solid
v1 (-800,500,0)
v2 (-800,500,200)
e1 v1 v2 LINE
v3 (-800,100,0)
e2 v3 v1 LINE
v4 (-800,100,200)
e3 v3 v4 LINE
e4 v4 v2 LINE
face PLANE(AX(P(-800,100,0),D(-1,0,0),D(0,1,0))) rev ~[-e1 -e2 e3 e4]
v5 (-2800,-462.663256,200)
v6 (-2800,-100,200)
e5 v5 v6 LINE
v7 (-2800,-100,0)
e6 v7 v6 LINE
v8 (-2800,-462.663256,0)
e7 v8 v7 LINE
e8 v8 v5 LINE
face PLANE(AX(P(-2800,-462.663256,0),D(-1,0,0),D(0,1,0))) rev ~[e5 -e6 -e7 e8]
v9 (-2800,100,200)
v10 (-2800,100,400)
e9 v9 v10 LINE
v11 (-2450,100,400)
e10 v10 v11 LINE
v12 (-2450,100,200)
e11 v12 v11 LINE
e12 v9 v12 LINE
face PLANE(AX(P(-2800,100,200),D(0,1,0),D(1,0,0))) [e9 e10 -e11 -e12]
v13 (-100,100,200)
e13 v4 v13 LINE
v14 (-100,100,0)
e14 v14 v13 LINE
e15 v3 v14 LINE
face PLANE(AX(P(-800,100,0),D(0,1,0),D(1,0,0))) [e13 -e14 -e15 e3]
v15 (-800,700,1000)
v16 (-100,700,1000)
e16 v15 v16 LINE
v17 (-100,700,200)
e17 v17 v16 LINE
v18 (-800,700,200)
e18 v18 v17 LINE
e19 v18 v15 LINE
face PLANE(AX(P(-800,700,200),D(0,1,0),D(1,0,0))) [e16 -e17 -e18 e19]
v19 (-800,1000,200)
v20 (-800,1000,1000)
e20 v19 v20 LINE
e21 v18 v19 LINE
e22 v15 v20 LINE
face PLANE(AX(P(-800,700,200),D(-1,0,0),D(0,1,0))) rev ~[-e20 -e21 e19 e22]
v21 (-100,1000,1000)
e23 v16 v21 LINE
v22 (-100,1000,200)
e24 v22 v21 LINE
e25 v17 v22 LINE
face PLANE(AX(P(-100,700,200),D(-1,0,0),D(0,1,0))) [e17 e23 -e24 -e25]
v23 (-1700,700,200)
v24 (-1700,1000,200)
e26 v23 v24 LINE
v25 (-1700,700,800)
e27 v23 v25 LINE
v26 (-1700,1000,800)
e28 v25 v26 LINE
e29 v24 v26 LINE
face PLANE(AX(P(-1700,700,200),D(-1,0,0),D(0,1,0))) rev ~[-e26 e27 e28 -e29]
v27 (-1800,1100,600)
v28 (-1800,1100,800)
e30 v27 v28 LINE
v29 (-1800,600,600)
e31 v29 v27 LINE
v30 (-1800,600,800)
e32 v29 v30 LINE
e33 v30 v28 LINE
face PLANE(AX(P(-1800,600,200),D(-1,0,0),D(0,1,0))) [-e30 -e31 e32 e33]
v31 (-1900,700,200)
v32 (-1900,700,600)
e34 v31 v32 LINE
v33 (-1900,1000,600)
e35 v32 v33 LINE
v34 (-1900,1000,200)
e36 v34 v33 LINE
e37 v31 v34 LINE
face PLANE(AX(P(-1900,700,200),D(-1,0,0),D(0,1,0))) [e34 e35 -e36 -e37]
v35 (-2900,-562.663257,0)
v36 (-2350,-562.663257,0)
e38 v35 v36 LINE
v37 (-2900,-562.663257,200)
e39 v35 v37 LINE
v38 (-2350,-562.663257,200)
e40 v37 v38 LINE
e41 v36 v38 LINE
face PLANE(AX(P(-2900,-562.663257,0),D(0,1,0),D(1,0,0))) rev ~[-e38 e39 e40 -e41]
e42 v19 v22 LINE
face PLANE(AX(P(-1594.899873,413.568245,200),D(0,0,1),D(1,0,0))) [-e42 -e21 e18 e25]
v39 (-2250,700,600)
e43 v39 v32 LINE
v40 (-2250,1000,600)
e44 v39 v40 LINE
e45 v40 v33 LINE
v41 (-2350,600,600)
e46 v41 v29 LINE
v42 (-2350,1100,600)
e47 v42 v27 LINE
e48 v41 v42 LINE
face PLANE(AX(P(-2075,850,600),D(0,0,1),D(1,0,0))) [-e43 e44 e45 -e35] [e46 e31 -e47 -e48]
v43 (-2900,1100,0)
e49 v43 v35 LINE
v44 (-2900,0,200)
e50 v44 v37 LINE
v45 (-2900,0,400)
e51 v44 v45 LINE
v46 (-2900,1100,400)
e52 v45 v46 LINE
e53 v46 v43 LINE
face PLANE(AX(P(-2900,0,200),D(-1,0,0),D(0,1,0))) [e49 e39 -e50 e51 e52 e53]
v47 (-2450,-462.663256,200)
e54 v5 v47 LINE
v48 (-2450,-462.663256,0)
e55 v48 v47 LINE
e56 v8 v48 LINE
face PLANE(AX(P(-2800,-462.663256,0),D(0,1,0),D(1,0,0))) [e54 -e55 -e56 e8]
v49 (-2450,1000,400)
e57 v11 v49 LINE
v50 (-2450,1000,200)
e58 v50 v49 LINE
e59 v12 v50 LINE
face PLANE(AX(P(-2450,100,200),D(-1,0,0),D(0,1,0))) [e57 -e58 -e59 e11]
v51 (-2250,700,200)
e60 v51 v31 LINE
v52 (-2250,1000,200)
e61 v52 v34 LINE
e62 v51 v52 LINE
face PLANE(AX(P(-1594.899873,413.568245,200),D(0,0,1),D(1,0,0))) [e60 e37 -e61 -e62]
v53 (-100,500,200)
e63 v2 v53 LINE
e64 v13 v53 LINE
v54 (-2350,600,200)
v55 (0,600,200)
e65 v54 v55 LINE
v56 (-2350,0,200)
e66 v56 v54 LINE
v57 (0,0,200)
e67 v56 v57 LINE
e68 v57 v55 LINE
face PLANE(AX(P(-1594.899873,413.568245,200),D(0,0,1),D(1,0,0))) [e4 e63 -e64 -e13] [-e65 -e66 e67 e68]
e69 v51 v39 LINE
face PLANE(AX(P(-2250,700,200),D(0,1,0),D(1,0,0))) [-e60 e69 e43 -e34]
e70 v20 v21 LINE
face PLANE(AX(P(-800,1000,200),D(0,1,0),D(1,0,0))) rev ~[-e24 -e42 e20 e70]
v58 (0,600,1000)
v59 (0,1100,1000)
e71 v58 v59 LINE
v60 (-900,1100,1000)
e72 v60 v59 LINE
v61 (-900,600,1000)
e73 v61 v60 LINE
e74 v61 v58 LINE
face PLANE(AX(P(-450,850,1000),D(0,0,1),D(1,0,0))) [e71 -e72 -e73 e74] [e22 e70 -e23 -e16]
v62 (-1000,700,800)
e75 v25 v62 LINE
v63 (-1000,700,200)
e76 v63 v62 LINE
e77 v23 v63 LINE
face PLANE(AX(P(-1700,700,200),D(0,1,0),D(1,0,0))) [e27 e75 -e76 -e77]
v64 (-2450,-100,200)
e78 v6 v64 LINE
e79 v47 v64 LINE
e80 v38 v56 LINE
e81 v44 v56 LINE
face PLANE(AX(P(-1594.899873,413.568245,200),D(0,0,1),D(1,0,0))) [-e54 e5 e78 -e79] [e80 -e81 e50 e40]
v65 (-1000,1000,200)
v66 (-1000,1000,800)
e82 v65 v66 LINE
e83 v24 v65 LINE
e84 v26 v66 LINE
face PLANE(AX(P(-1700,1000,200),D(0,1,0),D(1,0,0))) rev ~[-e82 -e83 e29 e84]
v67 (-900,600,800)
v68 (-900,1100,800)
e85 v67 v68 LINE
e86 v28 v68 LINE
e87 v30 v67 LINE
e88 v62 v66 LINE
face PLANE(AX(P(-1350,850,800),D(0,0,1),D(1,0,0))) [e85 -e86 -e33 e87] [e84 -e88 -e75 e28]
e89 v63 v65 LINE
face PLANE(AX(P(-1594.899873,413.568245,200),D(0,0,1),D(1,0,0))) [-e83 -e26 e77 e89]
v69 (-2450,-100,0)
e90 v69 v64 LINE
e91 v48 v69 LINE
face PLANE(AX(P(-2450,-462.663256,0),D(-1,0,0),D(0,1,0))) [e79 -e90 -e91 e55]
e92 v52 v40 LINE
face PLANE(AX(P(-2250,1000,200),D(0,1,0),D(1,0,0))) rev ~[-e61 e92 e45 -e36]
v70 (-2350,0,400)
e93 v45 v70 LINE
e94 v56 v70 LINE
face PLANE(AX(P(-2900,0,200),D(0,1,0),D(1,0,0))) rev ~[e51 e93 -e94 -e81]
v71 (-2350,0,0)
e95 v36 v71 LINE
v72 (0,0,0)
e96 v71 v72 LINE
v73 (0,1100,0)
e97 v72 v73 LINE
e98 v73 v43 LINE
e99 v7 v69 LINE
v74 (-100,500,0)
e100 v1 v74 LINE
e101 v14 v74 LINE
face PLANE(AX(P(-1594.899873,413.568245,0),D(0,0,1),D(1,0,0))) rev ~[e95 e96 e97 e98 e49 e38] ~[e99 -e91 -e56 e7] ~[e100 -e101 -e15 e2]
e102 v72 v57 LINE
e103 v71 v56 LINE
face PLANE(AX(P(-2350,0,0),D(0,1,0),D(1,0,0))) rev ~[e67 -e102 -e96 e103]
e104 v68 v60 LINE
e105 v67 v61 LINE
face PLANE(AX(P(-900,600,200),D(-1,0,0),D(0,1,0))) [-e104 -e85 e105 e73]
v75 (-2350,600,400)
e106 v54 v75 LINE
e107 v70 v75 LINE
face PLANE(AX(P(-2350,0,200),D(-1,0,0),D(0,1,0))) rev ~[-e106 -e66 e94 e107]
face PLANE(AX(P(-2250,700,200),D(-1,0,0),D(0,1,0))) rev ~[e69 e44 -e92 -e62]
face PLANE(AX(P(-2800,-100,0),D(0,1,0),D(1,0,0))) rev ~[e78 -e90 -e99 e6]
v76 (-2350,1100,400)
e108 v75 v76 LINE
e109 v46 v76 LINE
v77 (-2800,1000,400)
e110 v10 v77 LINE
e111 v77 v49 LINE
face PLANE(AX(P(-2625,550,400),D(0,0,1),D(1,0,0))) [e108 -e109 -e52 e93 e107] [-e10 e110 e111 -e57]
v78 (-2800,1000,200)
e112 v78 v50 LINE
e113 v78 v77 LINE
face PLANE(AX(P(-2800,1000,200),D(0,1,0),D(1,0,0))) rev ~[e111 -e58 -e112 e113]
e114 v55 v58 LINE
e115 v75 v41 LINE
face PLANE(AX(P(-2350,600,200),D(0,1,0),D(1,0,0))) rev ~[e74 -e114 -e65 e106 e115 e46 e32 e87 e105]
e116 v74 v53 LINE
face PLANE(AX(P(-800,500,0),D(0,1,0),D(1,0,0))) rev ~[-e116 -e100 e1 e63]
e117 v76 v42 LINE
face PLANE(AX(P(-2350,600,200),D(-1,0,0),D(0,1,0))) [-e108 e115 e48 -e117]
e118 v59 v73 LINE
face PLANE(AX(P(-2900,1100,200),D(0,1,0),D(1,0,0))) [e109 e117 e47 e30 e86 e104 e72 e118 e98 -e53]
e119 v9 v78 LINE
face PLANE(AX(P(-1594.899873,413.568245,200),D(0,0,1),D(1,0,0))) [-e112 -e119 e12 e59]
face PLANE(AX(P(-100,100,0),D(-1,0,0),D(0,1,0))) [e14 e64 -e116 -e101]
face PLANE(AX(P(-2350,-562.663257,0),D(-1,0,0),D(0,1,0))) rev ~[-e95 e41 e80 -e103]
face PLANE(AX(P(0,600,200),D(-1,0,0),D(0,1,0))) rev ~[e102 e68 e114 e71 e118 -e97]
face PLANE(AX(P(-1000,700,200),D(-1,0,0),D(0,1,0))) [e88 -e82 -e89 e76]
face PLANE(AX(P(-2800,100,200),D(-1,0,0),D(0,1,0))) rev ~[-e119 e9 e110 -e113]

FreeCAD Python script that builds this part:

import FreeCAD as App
import Part
import Sketcher


def add_polygon(sketch, points):
    """Adds a closed chain of lines whose ends are joined by coincident constraints."""
    first, n = sketch.GeometryCount, len(points)
    for a, b in zip(points, points[1:] + points[:1]):
        sketch.addGeometry(Part.LineSegment(App.Vector(*a, 0), App.Vector(*b, 0)), False)
    for i in range(n):
        sketch.addConstraint(Sketcher.Constraint("Coincident", first + i, 2, first + (i + 1) % n, 1))

doc = App.newDocument("Part")
body = doc.addObject("PartDesign::Body", "Body")

sketch1 = doc.addObject("Sketcher::SketchObject", "Sketch")
body.addObject(sketch1)
sketch1.AttachmentSupport = (doc.XY_Plane, [""])
sketch1.MapMode = "FlatFace"
add_polygon(sketch1, [(-2350, 0), (0, 0), (0, 1100), (-2900, 1100), (-2900, -562.663257), (-2350, -562.663257)])
add_polygon(sketch1, [(-2450, -462.663256), (-2800, -462.663256), (-2800, -100), (-2450, -100)])
add_polygon(sketch1, [(-100, 100), (-800, 100), (-800, 500), (-100, 500)])
sketch1.addConstraint([
    Sketcher.Constraint("Horizontal", 0),
    Sketcher.Constraint("Vertical", 1),
    Sketcher.Constraint("Horizontal", 2),
    Sketcher.Constraint("Vertical", 3),
    Sketcher.Constraint("Horizontal", 4),
    Sketcher.Constraint("Vertical", 5),
    Sketcher.Constraint("Horizontal", 6),
    Sketcher.Constraint("Vertical", 7),
    Sketcher.Constraint("Horizontal", 8),
    Sketcher.Constraint("Vertical", 9),
    Sketcher.Constraint("Horizontal", 10),
    Sketcher.Constraint("Vertical", 11),
    Sketcher.Constraint("Horizontal", 12),
    Sketcher.Constraint("Vertical", 13),
    Sketcher.Constraint("Coincident", 0, 2, -1, 1),
    Sketcher.Constraint("DistanceX", 0, 1, 0, 2, 2350.0),
    Sketcher.Constraint("DistanceX", 2, 2, 2, 1, 2900.0),
    Sketcher.Constraint("DistanceX", 6, 2, 6, 1, 350.0),
    Sketcher.Constraint("DistanceX", 10, 2, 10, 1, 700.0),
    Sketcher.Constraint("DistanceY", 1, 1, 1, 2, 1100.0),
    Sketcher.Constraint("DistanceY", 11, 1, 11, 2, 400.0),
    Sketcher.Constraint("DistanceX", 6, 2, -1, 1, 2800.0),
    Sketcher.Constraint("DistanceY", 7, 2, -1, 1, 100.0),
    Sketcher.Constraint("DistanceX", 10, 2, -1, 1, 800.0),
    Sketcher.Constraint("DistanceY", -1, 1, 10, 2, 100.0),
    Sketcher.Constraint("DistanceY", 3, 2, 6, 2, 100.000001),
    Sketcher.Constraint("DistanceY", 3, 2, 3, 1, 1662.663257),
])
pad1 = doc.addObject("PartDesign::Pad", "Pad")
body.addObject(pad1)
pad1.Profile = sketch1
pad1.Length = 200

sketch2 = doc.addObject("Sketcher::SketchObject", "Sketch001")
body.addObject(sketch2)
sketch2.AttachmentSupport = (doc.XY_Plane, [""])
sketch2.MapMode = "FlatFace"
sketch2.AttachmentOffset = App.Placement(App.Vector(0, 0, 200), App.Rotation())
add_polygon(sketch2, [(-900, 1100), (-900, 600), (0, 600), (0, 1100)])
add_polygon(sketch2, [(-100, 700), (-800, 700), (-800, 1000), (-100, 1000)])
sketch2.addConstraint([
    Sketcher.Constraint("Vertical", 0),
    Sketcher.Constraint("Horizontal", 1),
    Sketcher.Constraint("Vertical", 2),
    Sketcher.Constraint("Horizontal", 3),
    Sketcher.Constraint("Horizontal", 4),
    Sketcher.Constraint("Vertical", 5),
    Sketcher.Constraint("Horizontal", 6),
    Sketcher.Constraint("Vertical", 7),
    Sketcher.Constraint("PointOnObject", 1, 2, -2),
    Sketcher.Constraint("DistanceX", 1, 1, 1, 2, 900.0),
    Sketcher.Constraint("DistanceX", 4, 2, 4, 1, 700.0),
    Sketcher.Constraint("DistanceY", 0, 2, 0, 1, 500.0),
    Sketcher.Constraint("DistanceY", 5, 1, 5, 2, 300.0),
    Sketcher.Constraint("DistanceY", -1, 1, 0, 2, 600.0),
    Sketcher.Constraint("DistanceX", 4, 2, -1, 1, 800.0),
    Sketcher.Constraint("DistanceY", -1, 1, 4, 2, 700.0),
])
pad2 = doc.addObject("PartDesign::Pad", "Pad001")
body.addObject(pad2)
pad2.Profile = sketch2
pad2.Length = 800

sketch3 = doc.addObject("Sketcher::SketchObject", "Sketch002")
body.addObject(sketch3)
sketch3.AttachmentSupport = (doc.XY_Plane, [""])
sketch3.MapMode = "FlatFace"
sketch3.AttachmentOffset = App.Placement(App.Vector(0, 0, 200), App.Rotation())
add_polygon(sketch3, [(-1800, 1100), (-1800, 600), (-900, 600), (-900, 1100)])
add_polygon(sketch3, [(-1000, 700), (-1700, 700), (-1700, 1000), (-1000, 1000)])
sketch3.addConstraint([
    Sketcher.Constraint("Vertical", 0),
    Sketcher.Constraint("Horizontal", 1),
    Sketcher.Constraint("Vertical", 2),
    Sketcher.Constraint("Horizontal", 3),
    Sketcher.Constraint("Horizontal", 4),
    Sketcher.Constraint("Vertical", 5),
    Sketcher.Constraint("Horizontal", 6),
    Sketcher.Constraint("Vertical", 7),
    Sketcher.Constraint("DistanceX", 1, 1, 1, 2, 900.0),
    Sketcher.Constraint("DistanceX", 4, 2, 4, 1, 700.0),
    Sketcher.Constraint("DistanceY", 0, 2, 0, 1, 500.0),
    Sketcher.Constraint("DistanceY", 5, 1, 5, 2, 300.0),
    Sketcher.Constraint("DistanceX", 0, 2, -1, 1, 1800.0),
    Sketcher.Constraint("DistanceY", -1, 1, 0, 2, 600.0),
    Sketcher.Constraint("DistanceX", 4, 2, -1, 1, 1700.0),
    Sketcher.Constraint("DistanceY", -1, 1, 4, 2, 700.0),
])
pad3 = doc.addObject("PartDesign::Pad", "Pad002")
body.addObject(pad3)
pad3.Profile = sketch3
pad3.Length = 600

sketch4 = doc.addObject("Sketcher::SketchObject", "Sketch003")
body.addObject(sketch4)
sketch4.AttachmentSupport = (doc.XY_Plane, [""])
sketch4.MapMode = "FlatFace"
sketch4.AttachmentOffset = App.Placement(App.Vector(0, 0, 200), App.Rotation())
add_polygon(sketch4, [(-2350, 1100), (-2350, 600), (-1800, 600), (-1800, 1100)])
add_polygon(sketch4, [(-1900, 700), (-2250, 700), (-2250, 1000), (-1900, 1000)])
sketch4.addConstraint([
    Sketcher.Constraint("Vertical", 0),
    Sketcher.Constraint("Horizontal", 1),
    Sketcher.Constraint("Vertical", 2),
    Sketcher.Constraint("Horizontal", 3),
    Sketcher.Constraint("Horizontal", 4),
    Sketcher.Constraint("Vertical", 5),
    Sketcher.Constraint("Horizontal", 6),
    Sketcher.Constraint("Vertical", 7),
    Sketcher.Constraint("DistanceX", 1, 1, 1, 2, 550.0),
    Sketcher.Constraint("DistanceX", 4, 2, 4, 1, 350.0),
    Sketcher.Constraint("DistanceY", 0, 2, 0, 1, 500.0),
    Sketcher.Constraint("DistanceY", 5, 1, 5, 2, 300.0),
    Sketcher.Constraint("DistanceX", 0, 2, -1, 1, 2350.0),
    Sketcher.Constraint("DistanceY", -1, 1, 0, 2, 600.0),
    Sketcher.Constraint("DistanceX", 4, 2, -1, 1, 2250.0),
    Sketcher.Constraint("DistanceY", -1, 1, 4, 2, 700.0),
])
pad4 = doc.addObject("PartDesign::Pad", "Pad003")
body.addObject(pad4)
pad4.Profile = sketch4
pad4.Length = 400

sketch5 = doc.addObject("Sketcher::SketchObject", "Sketch004")
body.addObject(sketch5)
sketch5.AttachmentSupport = (doc.XY_Plane, [""])
sketch5.MapMode = "FlatFace"
sketch5.AttachmentOffset = App.Placement(App.Vector(0, 0, 200), App.Rotation())
add_polygon(sketch5, [(-2900, 1100), (-2900, 0), (-2350, 0), (-2350, 1100)])
add_polygon(sketch5, [(-2450, 100), (-2800, 100), (-2800, 1000), (-2450, 1000)])
sketch5.addConstraint([
    Sketcher.Constraint("Vertical", 0),
    Sketcher.Constraint("Horizontal", 1),
    Sketcher.Constraint("Vertical", 2),
    Sketcher.Constraint("Horizontal", 3),
    Sketcher.Constraint("Horizontal", 4),
    Sketcher.Constraint("Vertical", 5),
    Sketcher.Constraint("Horizontal", 6),
    Sketcher.Constraint("Vertical", 7),
    Sketcher.Constraint("PointOnObject", 0, 2, -1),
    Sketcher.Constraint("DistanceX", 1, 1, 1, 2, 550.0),
    Sketcher.Constraint("DistanceX", 4, 2, 4, 1, 350.0),
    Sketcher.Constraint("DistanceY", 0, 2, 0, 1, 1100.0),
    Sketcher.Constraint("DistanceY", 5, 1, 5, 2, 900.0),
    Sketcher.Constraint("DistanceX", 0, 2, -1, 1, 2900.0),
    Sketcher.Constraint("DistanceX", 4, 2, -1, 1, 2800.0),
    Sketcher.Constraint("DistanceY", -1, 1, 4, 2, 100.0),
])
pad5 = doc.addObject("PartDesign::Pad", "Pad004")
body.addObject(pad5)
pad5.Profile = sketch5
pad5.Length = 200

doc.recompute()
